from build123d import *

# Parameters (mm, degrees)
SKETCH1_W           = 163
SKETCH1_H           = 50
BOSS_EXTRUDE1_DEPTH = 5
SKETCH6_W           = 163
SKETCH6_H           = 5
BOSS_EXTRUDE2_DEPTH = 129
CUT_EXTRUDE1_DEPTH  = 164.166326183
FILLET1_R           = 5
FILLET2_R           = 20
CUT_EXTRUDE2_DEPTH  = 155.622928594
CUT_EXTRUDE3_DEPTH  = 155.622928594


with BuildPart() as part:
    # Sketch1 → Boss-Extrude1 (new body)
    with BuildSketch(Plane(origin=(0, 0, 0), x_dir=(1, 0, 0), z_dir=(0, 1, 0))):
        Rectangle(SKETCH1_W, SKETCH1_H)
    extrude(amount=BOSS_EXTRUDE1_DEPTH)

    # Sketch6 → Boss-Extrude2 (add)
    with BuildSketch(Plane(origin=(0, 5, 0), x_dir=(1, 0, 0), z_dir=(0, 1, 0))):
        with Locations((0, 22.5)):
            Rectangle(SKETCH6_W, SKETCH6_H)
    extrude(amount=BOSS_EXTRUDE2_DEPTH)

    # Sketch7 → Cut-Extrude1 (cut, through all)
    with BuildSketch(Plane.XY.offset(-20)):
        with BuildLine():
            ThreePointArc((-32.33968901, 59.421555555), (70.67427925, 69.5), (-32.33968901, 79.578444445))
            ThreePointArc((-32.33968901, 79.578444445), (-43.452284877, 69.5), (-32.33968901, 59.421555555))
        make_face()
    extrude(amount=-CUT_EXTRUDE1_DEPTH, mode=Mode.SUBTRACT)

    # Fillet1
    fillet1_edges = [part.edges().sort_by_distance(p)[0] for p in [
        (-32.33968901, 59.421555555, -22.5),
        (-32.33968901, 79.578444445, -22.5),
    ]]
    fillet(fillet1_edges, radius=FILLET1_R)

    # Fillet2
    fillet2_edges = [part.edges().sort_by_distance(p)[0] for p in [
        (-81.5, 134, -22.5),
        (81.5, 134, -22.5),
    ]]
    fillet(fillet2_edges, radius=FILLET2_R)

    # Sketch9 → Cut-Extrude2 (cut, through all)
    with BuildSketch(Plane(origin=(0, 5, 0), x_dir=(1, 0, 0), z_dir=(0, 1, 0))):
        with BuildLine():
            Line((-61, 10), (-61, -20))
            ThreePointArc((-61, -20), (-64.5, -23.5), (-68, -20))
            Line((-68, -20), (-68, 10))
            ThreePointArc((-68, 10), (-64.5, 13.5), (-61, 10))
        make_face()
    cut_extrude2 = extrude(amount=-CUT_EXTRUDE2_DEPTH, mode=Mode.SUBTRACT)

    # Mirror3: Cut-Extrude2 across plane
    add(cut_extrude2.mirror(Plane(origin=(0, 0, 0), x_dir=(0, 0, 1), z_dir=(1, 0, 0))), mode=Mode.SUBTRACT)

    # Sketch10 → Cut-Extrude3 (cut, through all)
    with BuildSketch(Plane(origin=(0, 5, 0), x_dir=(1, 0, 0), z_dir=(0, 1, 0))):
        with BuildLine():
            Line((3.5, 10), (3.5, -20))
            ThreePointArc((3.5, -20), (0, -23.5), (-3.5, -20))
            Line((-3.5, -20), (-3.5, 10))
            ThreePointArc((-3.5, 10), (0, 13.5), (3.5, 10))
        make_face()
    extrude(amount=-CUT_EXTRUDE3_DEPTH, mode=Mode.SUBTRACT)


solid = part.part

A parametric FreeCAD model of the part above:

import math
import FreeCAD as App
import Part
import Sketcher

V = App.Vector


def edges_at(feature, points):
    """Names of the edges that pass closest to the given points."""
    edges = feature.Shape.Edges
    near = lambda p: min(range(len(edges)), key=lambda i: edges[i].distToShape(Part.Vertex(*p))[0])
    return sorted({f"Edge{near(p) + 1}" for p in points})

doc = App.newDocument("Part")
body = doc.addObject("PartDesign::Body", "Body")

# Sketch on XZ plane
sketch1 = doc.addObject("Sketcher::SketchObject", "Sketch")
body.addObject(sketch1)
sketch1.AttachmentSupport = (doc.XZ_Plane, [""])
sketch1.MapMode = "FlatFace"
sketch1.addGeometry(Part.LineSegment(V(-82, -25, 0), V(-82, 25, 0)), False)
sketch1.addGeometry(Part.LineSegment(V(-82, 25, 0), V(82, 25, 0)), False)
sketch1.addGeometry(Part.LineSegment(V(82, 25, 0), V(82, -25, 0)), False)
sketch1.addGeometry(Part.LineSegment(V(82, -25, 0), V(-82, -25, 0)), False)
sketch1.addConstraint(Sketcher.Constraint("Coincident", 0, 2, 1, 1))
sketch1.addConstraint(Sketcher.Constraint("Coincident", 1, 2, 2, 1))
sketch1.addConstraint(Sketcher.Constraint("Coincident", 2, 2, 3, 1))
sketch1.addConstraint(Sketcher.Constraint("Coincident", 3, 2, 0, 1))
sketch1.addConstraint(Sketcher.Constraint("Vertical", 0))
sketch1.addConstraint(Sketcher.Constraint("Horizontal", 1))
sketch1.addConstraint(Sketcher.Constraint("Vertical", 2))
sketch1.addConstraint(Sketcher.Constraint("Horizontal", 3))
sketch1.addConstraint(Sketcher.Constraint("Symmetric", 0, 2, 2, 2, -1, 1))
sketch1.addConstraint(Sketcher.Constraint("DistanceX", 1, 1, 1, 2, 163.0))
sketch1.addConstraint(Sketcher.Constraint("DistanceY", 0, 1, 0, 2, 50.0))
pad1 = doc.addObject("PartDesign::Pad", "Pad")
body.addObject(pad1)
pad1.Profile = sketch1
pad1.Length = 5
pad1.Reversed = True

# Sketch on XZ plane
sketch2 = doc.addObject("Sketcher::SketchObject", "Sketch001")
body.addObject(sketch2)
sketch2.AttachmentSupport = (doc.XZ_Plane, [""])
sketch2.MapMode = "FlatFace"
sketch2.AttachmentOffset = App.Placement(V(0, 0, -5), App.Rotation())
sketch2.addGeometry(Part.LineSegment(V(-82, -25, 0), V(-82, -20, 0)), False)
sketch2.addGeometry(Part.LineSegment(V(-82, -20, 0), V(82, -20, 0)), False)
sketch2.addGeometry(Part.LineSegment(V(82, -20, 0), V(82, -25, 0)), False)
sketch2.addGeometry(Part.LineSegment(V(82, -25, 0), V(-82, -25, 0)), False)
sketch2.addConstraint(Sketcher.Constraint("Coincident", 0, 2, 1, 1))
sketch2.addConstraint(Sketcher.Constraint("Coincident", 1, 2, 2, 1))
sketch2.addConstraint(Sketcher.Constraint("Coincident", 2, 2, 3, 1))
sketch2.addConstraint(Sketcher.Constraint("Coincident", 3, 2, 0, 1))
sketch2.addConstraint(Sketcher.Constraint("Vertical", 0))
sketch2.addConstraint(Sketcher.Constraint("Horizontal", 1))
sketch2.addConstraint(Sketcher.Constraint("Vertical", 2))
sketch2.addConstraint(Sketcher.Constraint("Horizontal", 3))
sketch2.addConstraint(Sketcher.Constraint("DistanceX", 1, 1, 1, 2, 163.0))
sketch2.addConstraint(Sketcher.Constraint("DistanceY", 0, 1, 0, 2, 5.0))
sketch2.addConstraint(Sketcher.Constraint("DistanceY", 0, 2, -1, 1, 20.0))
sketch2.addConstraint(Sketcher.Constraint("DistanceX", 0, 2, -1, 1, 81.5))
pad2 = doc.addObject("PartDesign::Pad", "Pad001")
body.addObject(pad2)
pad2.Profile = sketch2
pad2.Length = 129
pad2.Reversed = True

# Sketch on XY plane
sketch3 = doc.addObject("Sketcher::SketchObject", "Sketch002")
body.addObject(sketch3)
sketch3.AttachmentSupport = (doc.XY_Plane, [""])
sketch3.MapMode = "FlatFace"
sketch3.AttachmentOffset = App.Placement(V(0, 0, -20), App.Rotation())
sketch3.addGeometry(Part.ArcOfCircle(Part.Circle(V(19, 70, 0), V(0, 0, 1), 52), math.radians(-169), math.radians(169)), False)
sketch3.addGeometry(Part.ArcOfCircle(Part.Circle(V(-33, 70, 0), V(0, 0, 1), 10), math.radians(84), math.radians(276)), False)
sketch3.addConstraint(Sketcher.Constraint("Coincident", 0, 1, 1, 2))
sketch3.addConstraint(Sketcher.Constraint("Coincident", 1, 1, 0, 2))
sketch3.addConstraint(Sketcher.Constraint("Horizontal", 0, 3, 1, 3))
sketch3.addConstraint(Sketcher.Constraint("Radius", 0, 52.0))
sketch3.addConstraint(Sketcher.Constraint("DistanceX", 1, 3, 0, 3, 52.0))
sketch3.addConstraint(Sketcher.Constraint("DistanceY", -1, 1, 0, 3, 69.5))
sketch3.addConstraint(Sketcher.Constraint("Radius", 1, 10.126564))
sketch3.addConstraint(Sketcher.Constraint("DistanceX", -1, 1, 0, 3, 18.674279))
pocket1 = doc.addObject("PartDesign::Pocket", "Pocket")
body.addObject(pocket1)
pocket1.Profile = sketch3
pocket1.Type = "ThroughAll"
doc.recompute()

fillet = doc.addObject("PartDesign::Fillet", "Fillet")
body.addObject(fillet)
fillet.Base = (pocket1, edges_at(pocket1, [(-32.34, 59.422, -22.5), (-32.34, 79.578, -22.5)]))
fillet.Radius = 5
doc.recompute()

fillet2 = doc.addObject("PartDesign::Fillet", "Fillet001")
body.addObject(fillet2)
fillet2.Base = (fillet, edges_at(fillet, [(-81.5, 134, -22.5), (81.5, 134, -22.5)]))
fillet2.Radius = 20

# Sketch on XZ plane
sketch4 = doc.addObject("Sketcher::SketchObject", "Sketch003")
body.addObject(sketch4)
sketch4.AttachmentSupport = (doc.XZ_Plane, [""])
sketch4.MapMode = "FlatFace"
sketch4.AttachmentOffset = App.Placement(V(0, 0, -5), App.Rotation())
sketch4.addGeometry(Part.LineSegment(V(-61, 20, 0), V(-61, -10, 0)), False)
sketch4.addGeometry(Part.ArcOfCircle(Part.Circle(V(-64.5, -10, 0), V(0, 0, 1), 3.5), math.radians(180), math.radians(360)), False)
sketch4.addGeometry(Part.LineSegment(V(-68, -10, 0), V(-68, 20, 0)), False)
sketch4.addGeometry(Part.ArcOfCircle(Part.Circle(V(-64.5, 20, 0), V(0, 0, 1), 3.5), math.radians(0), math.radians(180)), False)
sketch4.addConstraint(Sketcher.Constraint("Tangent", 0, 2, 1, 2))
sketch4.addConstraint(Sketcher.Constraint("Tangent", 1, 1, 2, 1))
sketch4.addConstraint(Sketcher.Constraint("Tangent", 2, 2, 3, 2))
sketch4.addConstraint(Sketcher.Constraint("Tangent", 3, 1, 0, 1))
sketch4.addConstraint(Sketcher.Constraint("Vertical", 0))
sketch4.addConstraint(Sketcher.Constraint("Vertical", 2))
sketch4.addConstraint(Sketcher.Constraint("Radius", 1, 3.5))
sketch4.addConstraint(Sketcher.Constraint("DistanceY", 0, 2, 0, 1, 30.0))
sketch4.addConstraint(Sketcher.Constraint("DistanceY", 1, 3, -1, 1, 10.0))
sketch4.addConstraint(Sketcher.Constraint("DistanceX", 0, 2, -1, 1, 61.0))
pocket2 = doc.addObject("PartDesign::Pocket", "Pocket001")
body.addObject(pocket2)
pocket2.Profile = sketch4
pocket2.Type = "ThroughAll"
pocket2.Reversed = True
doc.recompute()

mirrored = doc.addObject("PartDesign::Mirrored", "Mirrored")
body.addObject(mirrored)
mirrored.Originals = [pocket2]
mirrored.MirrorPlane = (doc.YZ_Plane, [""])
body.Tip = mirrored

# Sketch on XZ plane
sketch5 = doc.addObject("Sketcher::SketchObject", "Sketch004")
body.addObject(sketch5)
sketch5.AttachmentSupport = (doc.XZ_Plane, [""])
sketch5.MapMode = "FlatFace"
sketch5.AttachmentOffset = App.Placement(V(0, 0, -5), App.Rotation())
sketch5.addGeometry(Part.LineSegment(V(3.5, 20, 0), V(3.5, -10, 0)), False)
sketch5.addGeometry(Part.ArcOfCircle(Part.Circle(V(0, -10, 0), V(0, 0, 1), 3.5), math.radians(180), math.radians(360)), False)
sketch5.addGeometry(Part.LineSegment(V(-3.5, -10, 0), V(-3.5, 20, 0)), False)
sketch5.addGeometry(Part.ArcOfCircle(Part.Circle(V(0, 20, 0), V(0, 0, 1), 3.5), math.radians(0), math.radians(180)), False)
sketch5.addConstraint(Sketcher.Constraint("Tangent", 0, 2, 1, 2))
sketch5.addConstraint(Sketcher.Constraint("Tangent", 1, 1, 2, 1))
sketch5.addConstraint(Sketcher.Constraint("Tangent", 2, 2, 3, 2))
sketch5.addConstraint(Sketcher.Constraint("Tangent", 3, 1, 0, 1))
sketch5.addConstraint(Sketcher.Constraint("Vertical", 0))
sketch5.addConstraint(Sketcher.Constraint("Vertical", 2))
sketch5.addConstraint(Sketcher.Constraint("PointOnObject", 1, 3, -2))
sketch5.addConstraint(Sketcher.Constraint("Radius", 1, 3.5))
sketch5.addConstraint(Sketcher.Constraint("DistanceY", 0, 2, 0, 1, 30.0))
sketch5.addConstraint(Sketcher.Constraint("DistanceY", 1, 3, -1, 1, 10.0))
pocket3 = doc.addObject("PartDesign::Pocket", "Pocket002")
body.addObject(pocket3)
pocket3.Profile = sketch5
pocket3.Type = "ThroughAll"
pocket3.Reversed = True

doc.recompute()
